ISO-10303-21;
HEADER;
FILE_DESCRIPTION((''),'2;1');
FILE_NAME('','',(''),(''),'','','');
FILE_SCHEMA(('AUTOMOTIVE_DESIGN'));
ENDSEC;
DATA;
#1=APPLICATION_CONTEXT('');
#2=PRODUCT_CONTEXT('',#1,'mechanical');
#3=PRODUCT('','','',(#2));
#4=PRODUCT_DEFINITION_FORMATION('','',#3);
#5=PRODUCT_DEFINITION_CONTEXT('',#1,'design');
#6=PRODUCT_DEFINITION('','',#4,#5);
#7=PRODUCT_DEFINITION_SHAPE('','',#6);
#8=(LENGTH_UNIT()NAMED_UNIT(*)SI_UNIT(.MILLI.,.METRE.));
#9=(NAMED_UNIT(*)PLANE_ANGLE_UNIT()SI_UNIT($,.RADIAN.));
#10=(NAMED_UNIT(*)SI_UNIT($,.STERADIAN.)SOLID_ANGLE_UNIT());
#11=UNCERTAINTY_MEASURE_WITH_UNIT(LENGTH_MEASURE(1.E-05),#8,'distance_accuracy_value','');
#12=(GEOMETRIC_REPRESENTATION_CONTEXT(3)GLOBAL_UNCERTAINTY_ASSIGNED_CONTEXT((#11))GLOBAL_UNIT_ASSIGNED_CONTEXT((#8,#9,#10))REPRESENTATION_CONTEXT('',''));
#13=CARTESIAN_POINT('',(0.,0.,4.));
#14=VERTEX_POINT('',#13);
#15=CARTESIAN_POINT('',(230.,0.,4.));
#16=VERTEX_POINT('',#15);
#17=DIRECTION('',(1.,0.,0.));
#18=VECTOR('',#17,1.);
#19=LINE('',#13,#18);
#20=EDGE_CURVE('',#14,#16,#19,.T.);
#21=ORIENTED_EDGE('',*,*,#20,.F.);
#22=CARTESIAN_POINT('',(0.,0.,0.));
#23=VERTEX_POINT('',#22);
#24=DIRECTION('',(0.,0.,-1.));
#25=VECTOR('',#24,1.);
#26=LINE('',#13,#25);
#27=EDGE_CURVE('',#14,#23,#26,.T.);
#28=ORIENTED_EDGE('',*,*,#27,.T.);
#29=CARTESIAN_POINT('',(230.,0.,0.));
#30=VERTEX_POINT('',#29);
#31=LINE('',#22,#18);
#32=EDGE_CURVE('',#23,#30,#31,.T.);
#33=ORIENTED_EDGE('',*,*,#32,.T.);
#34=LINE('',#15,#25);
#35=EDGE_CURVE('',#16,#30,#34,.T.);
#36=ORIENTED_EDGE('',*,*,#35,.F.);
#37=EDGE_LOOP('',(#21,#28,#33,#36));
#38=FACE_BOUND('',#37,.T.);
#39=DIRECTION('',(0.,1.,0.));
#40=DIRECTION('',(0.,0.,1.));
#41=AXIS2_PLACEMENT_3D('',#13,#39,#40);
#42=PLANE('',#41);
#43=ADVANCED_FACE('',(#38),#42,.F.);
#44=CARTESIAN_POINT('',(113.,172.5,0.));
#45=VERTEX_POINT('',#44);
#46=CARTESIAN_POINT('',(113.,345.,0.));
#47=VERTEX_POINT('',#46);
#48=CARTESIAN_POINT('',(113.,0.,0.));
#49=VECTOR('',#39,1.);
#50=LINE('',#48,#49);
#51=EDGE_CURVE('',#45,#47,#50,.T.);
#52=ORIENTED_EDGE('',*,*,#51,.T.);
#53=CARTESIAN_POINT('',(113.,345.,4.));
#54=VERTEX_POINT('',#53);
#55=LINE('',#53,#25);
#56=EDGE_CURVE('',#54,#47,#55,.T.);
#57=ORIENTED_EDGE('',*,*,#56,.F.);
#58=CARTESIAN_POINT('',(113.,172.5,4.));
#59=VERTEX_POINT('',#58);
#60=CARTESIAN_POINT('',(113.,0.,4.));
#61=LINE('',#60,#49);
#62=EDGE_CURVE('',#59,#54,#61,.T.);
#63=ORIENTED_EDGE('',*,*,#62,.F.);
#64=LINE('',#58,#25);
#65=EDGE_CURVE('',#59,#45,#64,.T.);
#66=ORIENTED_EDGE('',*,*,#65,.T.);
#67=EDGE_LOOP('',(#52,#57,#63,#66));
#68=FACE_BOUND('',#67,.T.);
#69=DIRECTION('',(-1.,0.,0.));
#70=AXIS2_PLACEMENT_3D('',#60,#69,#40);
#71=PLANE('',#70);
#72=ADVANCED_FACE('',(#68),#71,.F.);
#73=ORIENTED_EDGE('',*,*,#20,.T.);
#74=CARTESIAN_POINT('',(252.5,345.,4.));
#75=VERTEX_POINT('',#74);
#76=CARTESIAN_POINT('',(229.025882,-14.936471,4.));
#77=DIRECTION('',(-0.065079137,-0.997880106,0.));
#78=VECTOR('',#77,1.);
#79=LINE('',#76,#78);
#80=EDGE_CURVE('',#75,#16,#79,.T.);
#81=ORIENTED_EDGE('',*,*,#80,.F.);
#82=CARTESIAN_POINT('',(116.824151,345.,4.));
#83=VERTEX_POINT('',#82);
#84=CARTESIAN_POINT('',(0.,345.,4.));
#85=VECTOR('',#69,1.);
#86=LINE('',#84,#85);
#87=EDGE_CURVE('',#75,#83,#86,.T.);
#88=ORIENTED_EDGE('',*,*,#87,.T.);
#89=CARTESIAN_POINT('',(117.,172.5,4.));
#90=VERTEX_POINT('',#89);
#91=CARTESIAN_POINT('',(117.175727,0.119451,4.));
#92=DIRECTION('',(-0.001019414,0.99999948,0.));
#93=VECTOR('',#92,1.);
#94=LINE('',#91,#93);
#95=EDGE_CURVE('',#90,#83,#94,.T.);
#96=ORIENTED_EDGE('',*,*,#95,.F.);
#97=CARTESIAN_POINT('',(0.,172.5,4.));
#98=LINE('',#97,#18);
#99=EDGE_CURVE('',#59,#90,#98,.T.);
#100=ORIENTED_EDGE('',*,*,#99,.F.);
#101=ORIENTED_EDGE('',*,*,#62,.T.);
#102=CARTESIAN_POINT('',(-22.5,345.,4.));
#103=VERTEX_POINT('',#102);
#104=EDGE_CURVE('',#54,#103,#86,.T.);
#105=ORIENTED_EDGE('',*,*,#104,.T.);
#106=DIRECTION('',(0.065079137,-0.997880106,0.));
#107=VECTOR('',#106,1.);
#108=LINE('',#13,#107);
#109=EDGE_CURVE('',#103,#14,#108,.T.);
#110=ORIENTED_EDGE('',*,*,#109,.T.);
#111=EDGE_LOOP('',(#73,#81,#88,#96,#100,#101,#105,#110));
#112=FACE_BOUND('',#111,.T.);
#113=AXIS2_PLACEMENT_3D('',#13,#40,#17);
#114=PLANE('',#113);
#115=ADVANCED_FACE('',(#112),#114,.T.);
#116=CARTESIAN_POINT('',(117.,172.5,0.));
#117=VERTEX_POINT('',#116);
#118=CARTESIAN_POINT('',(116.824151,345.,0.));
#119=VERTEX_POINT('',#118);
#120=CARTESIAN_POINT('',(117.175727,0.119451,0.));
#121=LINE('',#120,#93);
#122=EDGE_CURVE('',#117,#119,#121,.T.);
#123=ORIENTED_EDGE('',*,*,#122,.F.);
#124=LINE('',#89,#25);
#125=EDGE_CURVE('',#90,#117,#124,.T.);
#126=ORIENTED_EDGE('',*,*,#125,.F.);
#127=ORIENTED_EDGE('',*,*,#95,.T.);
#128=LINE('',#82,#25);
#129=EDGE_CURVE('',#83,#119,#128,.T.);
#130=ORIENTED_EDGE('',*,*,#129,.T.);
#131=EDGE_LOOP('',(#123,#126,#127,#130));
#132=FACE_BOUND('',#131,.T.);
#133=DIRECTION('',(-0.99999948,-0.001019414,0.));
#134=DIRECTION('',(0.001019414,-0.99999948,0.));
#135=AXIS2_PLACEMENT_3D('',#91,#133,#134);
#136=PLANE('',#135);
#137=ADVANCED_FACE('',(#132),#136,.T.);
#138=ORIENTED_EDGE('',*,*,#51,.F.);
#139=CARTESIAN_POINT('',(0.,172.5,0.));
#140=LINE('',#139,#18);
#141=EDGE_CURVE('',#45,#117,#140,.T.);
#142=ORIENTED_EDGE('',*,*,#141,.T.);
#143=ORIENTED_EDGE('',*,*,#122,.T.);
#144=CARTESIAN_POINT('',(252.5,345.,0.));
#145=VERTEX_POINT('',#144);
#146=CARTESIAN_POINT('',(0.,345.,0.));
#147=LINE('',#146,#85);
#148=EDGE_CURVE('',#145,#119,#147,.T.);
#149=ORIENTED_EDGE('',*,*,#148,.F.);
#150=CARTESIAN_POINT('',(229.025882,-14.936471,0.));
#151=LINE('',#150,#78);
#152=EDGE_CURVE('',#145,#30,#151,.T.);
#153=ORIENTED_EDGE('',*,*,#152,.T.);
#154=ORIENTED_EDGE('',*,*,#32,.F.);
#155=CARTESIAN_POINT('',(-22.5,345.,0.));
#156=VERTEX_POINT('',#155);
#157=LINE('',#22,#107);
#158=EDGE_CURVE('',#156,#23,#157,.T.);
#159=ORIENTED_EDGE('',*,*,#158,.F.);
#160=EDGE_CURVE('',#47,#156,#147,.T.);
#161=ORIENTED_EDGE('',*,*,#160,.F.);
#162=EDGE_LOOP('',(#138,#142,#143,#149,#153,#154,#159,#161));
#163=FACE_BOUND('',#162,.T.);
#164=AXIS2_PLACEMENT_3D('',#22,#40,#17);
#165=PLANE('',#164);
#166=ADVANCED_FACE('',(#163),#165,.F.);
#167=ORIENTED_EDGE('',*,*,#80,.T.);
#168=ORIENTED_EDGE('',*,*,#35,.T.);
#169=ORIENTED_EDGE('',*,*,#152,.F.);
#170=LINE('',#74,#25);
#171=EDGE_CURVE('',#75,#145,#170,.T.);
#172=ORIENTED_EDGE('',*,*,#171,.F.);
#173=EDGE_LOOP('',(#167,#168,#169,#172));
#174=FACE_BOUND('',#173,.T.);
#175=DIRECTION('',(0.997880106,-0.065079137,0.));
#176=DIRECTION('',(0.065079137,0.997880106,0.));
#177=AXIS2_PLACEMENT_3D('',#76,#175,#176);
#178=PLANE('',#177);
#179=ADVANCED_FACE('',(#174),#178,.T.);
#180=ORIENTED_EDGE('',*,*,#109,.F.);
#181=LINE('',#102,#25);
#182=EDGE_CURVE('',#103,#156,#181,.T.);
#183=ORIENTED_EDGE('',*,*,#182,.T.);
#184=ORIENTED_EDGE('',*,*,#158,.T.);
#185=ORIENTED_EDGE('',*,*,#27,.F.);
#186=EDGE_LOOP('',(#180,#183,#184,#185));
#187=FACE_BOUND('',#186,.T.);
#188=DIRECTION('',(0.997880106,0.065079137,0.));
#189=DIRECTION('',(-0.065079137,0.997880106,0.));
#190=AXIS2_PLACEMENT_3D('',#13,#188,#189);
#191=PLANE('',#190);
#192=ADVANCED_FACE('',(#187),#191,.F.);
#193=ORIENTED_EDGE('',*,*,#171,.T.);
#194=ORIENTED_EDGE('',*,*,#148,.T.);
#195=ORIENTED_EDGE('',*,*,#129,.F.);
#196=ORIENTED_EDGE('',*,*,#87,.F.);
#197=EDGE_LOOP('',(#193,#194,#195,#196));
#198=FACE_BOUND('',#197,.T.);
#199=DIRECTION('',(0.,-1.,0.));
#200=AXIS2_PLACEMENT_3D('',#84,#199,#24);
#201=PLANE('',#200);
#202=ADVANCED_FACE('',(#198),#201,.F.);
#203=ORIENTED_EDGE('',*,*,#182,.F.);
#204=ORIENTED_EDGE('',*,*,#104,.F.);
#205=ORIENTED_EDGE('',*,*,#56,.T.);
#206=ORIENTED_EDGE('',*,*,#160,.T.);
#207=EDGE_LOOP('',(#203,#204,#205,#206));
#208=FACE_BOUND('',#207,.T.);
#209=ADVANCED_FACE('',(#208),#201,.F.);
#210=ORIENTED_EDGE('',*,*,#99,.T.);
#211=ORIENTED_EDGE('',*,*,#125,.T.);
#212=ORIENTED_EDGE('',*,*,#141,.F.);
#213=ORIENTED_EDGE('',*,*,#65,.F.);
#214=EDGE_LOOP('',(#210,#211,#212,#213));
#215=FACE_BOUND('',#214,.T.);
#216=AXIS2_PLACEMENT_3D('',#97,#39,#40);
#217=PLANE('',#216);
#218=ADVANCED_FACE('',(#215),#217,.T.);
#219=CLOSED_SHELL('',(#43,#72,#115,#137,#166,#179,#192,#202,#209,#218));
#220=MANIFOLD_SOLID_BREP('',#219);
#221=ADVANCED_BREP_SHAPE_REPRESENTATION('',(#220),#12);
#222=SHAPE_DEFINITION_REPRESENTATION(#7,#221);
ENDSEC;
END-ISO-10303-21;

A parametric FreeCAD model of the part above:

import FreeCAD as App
import Part
import Sketcher

V = App.Vector
Q = App.Units.Quantity


def add_polygon(sketch, points):
    """Adds a closed chain of lines whose ends are joined by coincident constraints."""
    first, n = sketch.GeometryCount, len(points)
    for a, b in zip(points, points[1:] + points[:1]):
        sketch.addGeometry(Part.LineSegment(App.Vector(*a, 0), App.Vector(*b, 0)), False)
    for i in range(n):
        sketch.addConstraint(Sketcher.Constraint("Coincident", first + i, 2, first + (i + 1) % n, 1))

doc = App.newDocument("Part")
body = doc.addObject("PartDesign::Body", "Body")

sketch1 = doc.addObject("Sketcher::SketchObject", "Sketch")
body.addObject(sketch1)
sketch1.AttachmentSupport = (doc.XY_Plane, [""])
sketch1.MapMode = "FlatFace"
add_polygon(sketch1, [(-22.5, 345), (0, 0), (230, 0), (252.5, 345), (116.8, 345), (117, 172.5), (113, 172.5), (113, 345)])
sketch1.addConstraint([
    Sketcher.Constraint("Horizontal", 1),
    Sketcher.Constraint("Horizontal", 3),
    Sketcher.Constraint("Horizontal", 5),
    Sketcher.Constraint("Vertical", 6),
    Sketcher.Constraint("Horizontal", 7),
    Sketcher.Constraint("Coincident", 0, 2, -1, 1),
    Sketcher.Constraint("Horizontal", 3, 2, 6, 2),
    Sketcher.Constraint("Equal", 0, 2),
    Sketcher.Constraint("DistanceX", 1, 1, 1, 2, Q("230 mm")),
    Sketcher.Constraint("DistanceX", 5, 2, 5, 1, Q("4 mm")),
    Sketcher.Constraint("DistanceX", 7, 2, 7, 1, Q("135.5 mm")),
    Sketcher.Constraint("DistanceY", 6, 1, 6, 2, Q("172.5 mm")),
    Sketcher.Constraint("DistanceY", -1, 1, 2, 2, Q("345 mm")),
    Sketcher.Constraint("DistanceX", -1, 1, 4, 2, Q("117 mm")),
    Sketcher.Constraint("DistanceX", 3, 2, 3, 1, Q("135.675849 mm")),
])
pad1 = doc.addObject("PartDesign::Pad", "Pad")
body.addObject(pad1)
pad1.Profile = sketch1
pad1.Length = 4

doc.recompute()
